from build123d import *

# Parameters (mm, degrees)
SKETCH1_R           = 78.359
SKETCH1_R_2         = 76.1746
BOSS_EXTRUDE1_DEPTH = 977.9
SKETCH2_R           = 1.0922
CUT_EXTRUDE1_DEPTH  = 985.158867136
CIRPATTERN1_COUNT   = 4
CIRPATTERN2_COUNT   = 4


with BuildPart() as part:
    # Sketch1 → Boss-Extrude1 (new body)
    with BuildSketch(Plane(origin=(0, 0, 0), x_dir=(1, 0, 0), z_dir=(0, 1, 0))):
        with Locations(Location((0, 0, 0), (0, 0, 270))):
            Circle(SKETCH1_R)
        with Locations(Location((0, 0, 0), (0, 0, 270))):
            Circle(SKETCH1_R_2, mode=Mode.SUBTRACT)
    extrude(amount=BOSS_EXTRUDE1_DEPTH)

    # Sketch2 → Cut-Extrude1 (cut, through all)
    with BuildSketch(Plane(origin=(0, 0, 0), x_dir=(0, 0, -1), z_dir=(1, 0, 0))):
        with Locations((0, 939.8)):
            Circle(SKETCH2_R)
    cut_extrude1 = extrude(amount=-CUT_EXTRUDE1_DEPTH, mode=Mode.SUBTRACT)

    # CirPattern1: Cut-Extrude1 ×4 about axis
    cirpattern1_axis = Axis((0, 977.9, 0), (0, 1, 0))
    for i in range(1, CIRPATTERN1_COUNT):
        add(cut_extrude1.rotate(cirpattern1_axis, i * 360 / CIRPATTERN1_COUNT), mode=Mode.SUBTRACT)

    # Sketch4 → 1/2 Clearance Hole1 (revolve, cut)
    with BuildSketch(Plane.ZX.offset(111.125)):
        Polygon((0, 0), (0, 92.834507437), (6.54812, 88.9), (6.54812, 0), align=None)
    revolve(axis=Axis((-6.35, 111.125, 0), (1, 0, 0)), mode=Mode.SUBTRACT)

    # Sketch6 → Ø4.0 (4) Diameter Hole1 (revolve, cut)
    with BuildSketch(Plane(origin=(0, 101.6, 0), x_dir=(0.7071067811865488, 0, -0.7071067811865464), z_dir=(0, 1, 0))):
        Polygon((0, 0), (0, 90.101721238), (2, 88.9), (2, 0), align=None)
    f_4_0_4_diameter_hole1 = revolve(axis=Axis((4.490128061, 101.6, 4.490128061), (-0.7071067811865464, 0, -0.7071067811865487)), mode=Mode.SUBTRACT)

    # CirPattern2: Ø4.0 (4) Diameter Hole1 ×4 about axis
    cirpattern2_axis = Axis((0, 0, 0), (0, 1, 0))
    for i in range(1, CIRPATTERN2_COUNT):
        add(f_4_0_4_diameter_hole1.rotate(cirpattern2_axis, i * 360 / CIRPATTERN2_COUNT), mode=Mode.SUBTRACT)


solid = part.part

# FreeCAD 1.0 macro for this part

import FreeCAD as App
import Part
import Sketcher
from FreeCAD import Vector
Q = App.Units.Quantity

doc = App.newDocument("Part")
body = doc.addObject("PartDesign::Body", "Body")

# Sketch on XZ plane
sketch1 = body.newObject("Sketcher::SketchObject", "Sketch")
sketch1.AttachmentSupport = (doc.getObject("XZ_Plane"), [""])
sketch1.MapMode = "FlatFace"
sketch1.addGeometry([
    Part.Circle(Vector(0, 0, 0), Vector(0, 0, 1), 78),
    Part.Circle(Vector(0, 0, 0), Vector(0, 0, 1), 76),
], False)
sketch1.addConstraint([
    Sketcher.Constraint("Coincident", 0, 3, -1, 1),
    Sketcher.Constraint("Coincident", 1, 3, -1, 1),
    Sketcher.Constraint("Diameter", 0, Q("6.17 in")),
    Sketcher.Constraint("Diameter", 1, Q("5.998 in")),
])
pad1 = body.newObject("PartDesign::Pad", "Pad")
pad1.Profile = sketch1
pad1.Length = Q("38.5 in")
pad1.Reversed = True

# Sketch on YZ plane
sketch2 = body.newObject("Sketcher::SketchObject", "Sketch001")
sketch2.AttachmentSupport = (doc.getObject("YZ_Plane"), [""])
sketch2.MapMode = "FlatFace"
sketch2.addGeometry(Part.Circle(Vector(939.8, 0, 0), Vector(0, 0, 1), 1.1), False)
sketch2.addConstraint([
    Sketcher.Constraint("PointOnObject", 0, 3, -1),
    Sketcher.Constraint("Diameter", 0, Q("0.086 in")),
    Sketcher.Constraint("DistanceX", -1, 1, 0, 3, Q("37 in")),
])
pocket1 = body.newObject("PartDesign::Pocket", "Pocket")
pocket1.Profile = sketch2
pocket1.Type = "ThroughAll"
doc.recompute()

polarpattern = body.newObject("PartDesign::PolarPattern", "PolarPattern")
polarpattern.Originals = [pocket1]
polarpattern.Axis = (doc.getObject("Y_Axis"), [""])
polarpattern.Angle = 360
polarpattern.Occurrences = 4
body.Tip = polarpattern

# Sketch on XZ plane
sketch3 = body.newObject("Sketcher::SketchObject", "Sketch002")
sketch3.AttachmentSupport = (doc.getObject("XZ_Plane"), [""])
sketch3.MapMode = "FlatFace"
sketch3.AttachmentOffset = App.Placement(Vector(0, 0, -4.375 * 25.4), App.Rotation())
sketch3.addGeometry([
    Part.LineSegment(Vector(93, 0, 0), Vector(0, 0, 0)),
    Part.LineSegment(Vector(0, 0, 0), Vector(0, 7, 0)),
    Part.LineSegment(Vector(0, 7, 0), Vector(89, 7, 0)),
    Part.LineSegment(Vector(89, 7, 0), Vector(93, 0, 0)),
], False)
sketch3.addConstraint([
    Sketcher.Constraint("Coincident", 0, 2, 1, 1),
    Sketcher.Constraint("Coincident", 1, 2, 2, 1),
    Sketcher.Constraint("Coincident", 2, 2, 3, 1),
    Sketcher.Constraint("Coincident", 3, 2, 0, 1),
    Sketcher.Constraint("Horizontal", 0),
    Sketcher.Constraint("Vertical", 1),
    Sketcher.Constraint("Horizontal", 2),
    Sketcher.Constraint("Coincident", 0, 2, -1, 1),
    Sketcher.Constraint("DistanceX", 2, 1, 2, 2, Q("3.5 in")),
    Sketcher.Constraint("Angle", 3, Q("-59 deg")),
    Sketcher.Constraint("DistanceY", 1, 1, 1, 2, Q("0.2578 in")),
])
groove = body.newObject("PartDesign::Groove", "Groove")
groove.Profile = sketch3
groove.ReferenceAxis = (sketch3, ["H_Axis"])
groove.Angle = 360

# Sketch on XZ plane
sketch4 = body.newObject("Sketcher::SketchObject", "Sketch003")
sketch4.AttachmentSupport = (doc.getObject("XZ_Plane"), [""])
sketch4.MapMode = "FlatFace"
sketch4.AttachmentOffset = App.Placement(Vector(0, 0, -4 * 25.4), App.Rotation())
sketch4.addGeometry([
    Part.LineSegment(Vector(-63.7, -63.7, 0), Vector(0, 0, 0)),
    Part.LineSegment(Vector(0, 0, 0), Vector(1.4, -1.4, 0)),
    Part.LineSegment(Vector(1.4, -1.4, 0), Vector(-61.4, -64.3, 0)),
    Part.LineSegment(Vector(-61.4, -64.3, 0), Vector(-63.7, -63.7, 0)),
], False)
sketch4.addGeometry(Part.LineSegment(Vector(0, 0, 0), Vector(-63.7, -63.7, 0)), True)  # axis
sketch4.addConstraint([
    Sketcher.Constraint("Coincident", 0, 2, 1, 1),
    Sketcher.Constraint("Coincident", 1, 2, 2, 1),
    Sketcher.Constraint("Coincident", 2, 2, 3, 1),
    Sketcher.Constraint("Coincident", 3, 2, 0, 1),
    Sketcher.Constraint("Coincident", 0, 2, -1, 1),
    Sketcher.Constraint("Coincident", 4, 1, -1, 1),
    Sketcher.Constraint("Coincident", 4, 2, 3, 2),
    Sketcher.Constraint("Perpendicular", 0, 1),
    Sketcher.Constraint("Perpendicular", 1, 2),
    Sketcher.Constraint("Angle", 0, Q("45 deg")),
    Sketcher.Constraint("Angle", 3, Q("166 deg")),
    Sketcher.Constraint("Distance", 2, Q("3.5 in")),
    Sketcher.Constraint("Distance", 1, Q("2 mm")),
])
groove2 = body.newObject("PartDesign::Groove", "Groove001")
groove2.Profile = sketch4
groove2.ReferenceAxis = (sketch4, ["Axis0"])
groove2.Angle = 360
doc.recompute()

polarpattern2 = body.newObject("PartDesign::PolarPattern", "PolarPattern001")
polarpattern2.Originals = [groove2]
polarpattern2.Axis = (doc.getObject("Y_Axis"), [""])
polarpattern2.Angle = 360
polarpattern2.Occurrences = 4
body.Tip = polarpattern2

doc.recompute()
